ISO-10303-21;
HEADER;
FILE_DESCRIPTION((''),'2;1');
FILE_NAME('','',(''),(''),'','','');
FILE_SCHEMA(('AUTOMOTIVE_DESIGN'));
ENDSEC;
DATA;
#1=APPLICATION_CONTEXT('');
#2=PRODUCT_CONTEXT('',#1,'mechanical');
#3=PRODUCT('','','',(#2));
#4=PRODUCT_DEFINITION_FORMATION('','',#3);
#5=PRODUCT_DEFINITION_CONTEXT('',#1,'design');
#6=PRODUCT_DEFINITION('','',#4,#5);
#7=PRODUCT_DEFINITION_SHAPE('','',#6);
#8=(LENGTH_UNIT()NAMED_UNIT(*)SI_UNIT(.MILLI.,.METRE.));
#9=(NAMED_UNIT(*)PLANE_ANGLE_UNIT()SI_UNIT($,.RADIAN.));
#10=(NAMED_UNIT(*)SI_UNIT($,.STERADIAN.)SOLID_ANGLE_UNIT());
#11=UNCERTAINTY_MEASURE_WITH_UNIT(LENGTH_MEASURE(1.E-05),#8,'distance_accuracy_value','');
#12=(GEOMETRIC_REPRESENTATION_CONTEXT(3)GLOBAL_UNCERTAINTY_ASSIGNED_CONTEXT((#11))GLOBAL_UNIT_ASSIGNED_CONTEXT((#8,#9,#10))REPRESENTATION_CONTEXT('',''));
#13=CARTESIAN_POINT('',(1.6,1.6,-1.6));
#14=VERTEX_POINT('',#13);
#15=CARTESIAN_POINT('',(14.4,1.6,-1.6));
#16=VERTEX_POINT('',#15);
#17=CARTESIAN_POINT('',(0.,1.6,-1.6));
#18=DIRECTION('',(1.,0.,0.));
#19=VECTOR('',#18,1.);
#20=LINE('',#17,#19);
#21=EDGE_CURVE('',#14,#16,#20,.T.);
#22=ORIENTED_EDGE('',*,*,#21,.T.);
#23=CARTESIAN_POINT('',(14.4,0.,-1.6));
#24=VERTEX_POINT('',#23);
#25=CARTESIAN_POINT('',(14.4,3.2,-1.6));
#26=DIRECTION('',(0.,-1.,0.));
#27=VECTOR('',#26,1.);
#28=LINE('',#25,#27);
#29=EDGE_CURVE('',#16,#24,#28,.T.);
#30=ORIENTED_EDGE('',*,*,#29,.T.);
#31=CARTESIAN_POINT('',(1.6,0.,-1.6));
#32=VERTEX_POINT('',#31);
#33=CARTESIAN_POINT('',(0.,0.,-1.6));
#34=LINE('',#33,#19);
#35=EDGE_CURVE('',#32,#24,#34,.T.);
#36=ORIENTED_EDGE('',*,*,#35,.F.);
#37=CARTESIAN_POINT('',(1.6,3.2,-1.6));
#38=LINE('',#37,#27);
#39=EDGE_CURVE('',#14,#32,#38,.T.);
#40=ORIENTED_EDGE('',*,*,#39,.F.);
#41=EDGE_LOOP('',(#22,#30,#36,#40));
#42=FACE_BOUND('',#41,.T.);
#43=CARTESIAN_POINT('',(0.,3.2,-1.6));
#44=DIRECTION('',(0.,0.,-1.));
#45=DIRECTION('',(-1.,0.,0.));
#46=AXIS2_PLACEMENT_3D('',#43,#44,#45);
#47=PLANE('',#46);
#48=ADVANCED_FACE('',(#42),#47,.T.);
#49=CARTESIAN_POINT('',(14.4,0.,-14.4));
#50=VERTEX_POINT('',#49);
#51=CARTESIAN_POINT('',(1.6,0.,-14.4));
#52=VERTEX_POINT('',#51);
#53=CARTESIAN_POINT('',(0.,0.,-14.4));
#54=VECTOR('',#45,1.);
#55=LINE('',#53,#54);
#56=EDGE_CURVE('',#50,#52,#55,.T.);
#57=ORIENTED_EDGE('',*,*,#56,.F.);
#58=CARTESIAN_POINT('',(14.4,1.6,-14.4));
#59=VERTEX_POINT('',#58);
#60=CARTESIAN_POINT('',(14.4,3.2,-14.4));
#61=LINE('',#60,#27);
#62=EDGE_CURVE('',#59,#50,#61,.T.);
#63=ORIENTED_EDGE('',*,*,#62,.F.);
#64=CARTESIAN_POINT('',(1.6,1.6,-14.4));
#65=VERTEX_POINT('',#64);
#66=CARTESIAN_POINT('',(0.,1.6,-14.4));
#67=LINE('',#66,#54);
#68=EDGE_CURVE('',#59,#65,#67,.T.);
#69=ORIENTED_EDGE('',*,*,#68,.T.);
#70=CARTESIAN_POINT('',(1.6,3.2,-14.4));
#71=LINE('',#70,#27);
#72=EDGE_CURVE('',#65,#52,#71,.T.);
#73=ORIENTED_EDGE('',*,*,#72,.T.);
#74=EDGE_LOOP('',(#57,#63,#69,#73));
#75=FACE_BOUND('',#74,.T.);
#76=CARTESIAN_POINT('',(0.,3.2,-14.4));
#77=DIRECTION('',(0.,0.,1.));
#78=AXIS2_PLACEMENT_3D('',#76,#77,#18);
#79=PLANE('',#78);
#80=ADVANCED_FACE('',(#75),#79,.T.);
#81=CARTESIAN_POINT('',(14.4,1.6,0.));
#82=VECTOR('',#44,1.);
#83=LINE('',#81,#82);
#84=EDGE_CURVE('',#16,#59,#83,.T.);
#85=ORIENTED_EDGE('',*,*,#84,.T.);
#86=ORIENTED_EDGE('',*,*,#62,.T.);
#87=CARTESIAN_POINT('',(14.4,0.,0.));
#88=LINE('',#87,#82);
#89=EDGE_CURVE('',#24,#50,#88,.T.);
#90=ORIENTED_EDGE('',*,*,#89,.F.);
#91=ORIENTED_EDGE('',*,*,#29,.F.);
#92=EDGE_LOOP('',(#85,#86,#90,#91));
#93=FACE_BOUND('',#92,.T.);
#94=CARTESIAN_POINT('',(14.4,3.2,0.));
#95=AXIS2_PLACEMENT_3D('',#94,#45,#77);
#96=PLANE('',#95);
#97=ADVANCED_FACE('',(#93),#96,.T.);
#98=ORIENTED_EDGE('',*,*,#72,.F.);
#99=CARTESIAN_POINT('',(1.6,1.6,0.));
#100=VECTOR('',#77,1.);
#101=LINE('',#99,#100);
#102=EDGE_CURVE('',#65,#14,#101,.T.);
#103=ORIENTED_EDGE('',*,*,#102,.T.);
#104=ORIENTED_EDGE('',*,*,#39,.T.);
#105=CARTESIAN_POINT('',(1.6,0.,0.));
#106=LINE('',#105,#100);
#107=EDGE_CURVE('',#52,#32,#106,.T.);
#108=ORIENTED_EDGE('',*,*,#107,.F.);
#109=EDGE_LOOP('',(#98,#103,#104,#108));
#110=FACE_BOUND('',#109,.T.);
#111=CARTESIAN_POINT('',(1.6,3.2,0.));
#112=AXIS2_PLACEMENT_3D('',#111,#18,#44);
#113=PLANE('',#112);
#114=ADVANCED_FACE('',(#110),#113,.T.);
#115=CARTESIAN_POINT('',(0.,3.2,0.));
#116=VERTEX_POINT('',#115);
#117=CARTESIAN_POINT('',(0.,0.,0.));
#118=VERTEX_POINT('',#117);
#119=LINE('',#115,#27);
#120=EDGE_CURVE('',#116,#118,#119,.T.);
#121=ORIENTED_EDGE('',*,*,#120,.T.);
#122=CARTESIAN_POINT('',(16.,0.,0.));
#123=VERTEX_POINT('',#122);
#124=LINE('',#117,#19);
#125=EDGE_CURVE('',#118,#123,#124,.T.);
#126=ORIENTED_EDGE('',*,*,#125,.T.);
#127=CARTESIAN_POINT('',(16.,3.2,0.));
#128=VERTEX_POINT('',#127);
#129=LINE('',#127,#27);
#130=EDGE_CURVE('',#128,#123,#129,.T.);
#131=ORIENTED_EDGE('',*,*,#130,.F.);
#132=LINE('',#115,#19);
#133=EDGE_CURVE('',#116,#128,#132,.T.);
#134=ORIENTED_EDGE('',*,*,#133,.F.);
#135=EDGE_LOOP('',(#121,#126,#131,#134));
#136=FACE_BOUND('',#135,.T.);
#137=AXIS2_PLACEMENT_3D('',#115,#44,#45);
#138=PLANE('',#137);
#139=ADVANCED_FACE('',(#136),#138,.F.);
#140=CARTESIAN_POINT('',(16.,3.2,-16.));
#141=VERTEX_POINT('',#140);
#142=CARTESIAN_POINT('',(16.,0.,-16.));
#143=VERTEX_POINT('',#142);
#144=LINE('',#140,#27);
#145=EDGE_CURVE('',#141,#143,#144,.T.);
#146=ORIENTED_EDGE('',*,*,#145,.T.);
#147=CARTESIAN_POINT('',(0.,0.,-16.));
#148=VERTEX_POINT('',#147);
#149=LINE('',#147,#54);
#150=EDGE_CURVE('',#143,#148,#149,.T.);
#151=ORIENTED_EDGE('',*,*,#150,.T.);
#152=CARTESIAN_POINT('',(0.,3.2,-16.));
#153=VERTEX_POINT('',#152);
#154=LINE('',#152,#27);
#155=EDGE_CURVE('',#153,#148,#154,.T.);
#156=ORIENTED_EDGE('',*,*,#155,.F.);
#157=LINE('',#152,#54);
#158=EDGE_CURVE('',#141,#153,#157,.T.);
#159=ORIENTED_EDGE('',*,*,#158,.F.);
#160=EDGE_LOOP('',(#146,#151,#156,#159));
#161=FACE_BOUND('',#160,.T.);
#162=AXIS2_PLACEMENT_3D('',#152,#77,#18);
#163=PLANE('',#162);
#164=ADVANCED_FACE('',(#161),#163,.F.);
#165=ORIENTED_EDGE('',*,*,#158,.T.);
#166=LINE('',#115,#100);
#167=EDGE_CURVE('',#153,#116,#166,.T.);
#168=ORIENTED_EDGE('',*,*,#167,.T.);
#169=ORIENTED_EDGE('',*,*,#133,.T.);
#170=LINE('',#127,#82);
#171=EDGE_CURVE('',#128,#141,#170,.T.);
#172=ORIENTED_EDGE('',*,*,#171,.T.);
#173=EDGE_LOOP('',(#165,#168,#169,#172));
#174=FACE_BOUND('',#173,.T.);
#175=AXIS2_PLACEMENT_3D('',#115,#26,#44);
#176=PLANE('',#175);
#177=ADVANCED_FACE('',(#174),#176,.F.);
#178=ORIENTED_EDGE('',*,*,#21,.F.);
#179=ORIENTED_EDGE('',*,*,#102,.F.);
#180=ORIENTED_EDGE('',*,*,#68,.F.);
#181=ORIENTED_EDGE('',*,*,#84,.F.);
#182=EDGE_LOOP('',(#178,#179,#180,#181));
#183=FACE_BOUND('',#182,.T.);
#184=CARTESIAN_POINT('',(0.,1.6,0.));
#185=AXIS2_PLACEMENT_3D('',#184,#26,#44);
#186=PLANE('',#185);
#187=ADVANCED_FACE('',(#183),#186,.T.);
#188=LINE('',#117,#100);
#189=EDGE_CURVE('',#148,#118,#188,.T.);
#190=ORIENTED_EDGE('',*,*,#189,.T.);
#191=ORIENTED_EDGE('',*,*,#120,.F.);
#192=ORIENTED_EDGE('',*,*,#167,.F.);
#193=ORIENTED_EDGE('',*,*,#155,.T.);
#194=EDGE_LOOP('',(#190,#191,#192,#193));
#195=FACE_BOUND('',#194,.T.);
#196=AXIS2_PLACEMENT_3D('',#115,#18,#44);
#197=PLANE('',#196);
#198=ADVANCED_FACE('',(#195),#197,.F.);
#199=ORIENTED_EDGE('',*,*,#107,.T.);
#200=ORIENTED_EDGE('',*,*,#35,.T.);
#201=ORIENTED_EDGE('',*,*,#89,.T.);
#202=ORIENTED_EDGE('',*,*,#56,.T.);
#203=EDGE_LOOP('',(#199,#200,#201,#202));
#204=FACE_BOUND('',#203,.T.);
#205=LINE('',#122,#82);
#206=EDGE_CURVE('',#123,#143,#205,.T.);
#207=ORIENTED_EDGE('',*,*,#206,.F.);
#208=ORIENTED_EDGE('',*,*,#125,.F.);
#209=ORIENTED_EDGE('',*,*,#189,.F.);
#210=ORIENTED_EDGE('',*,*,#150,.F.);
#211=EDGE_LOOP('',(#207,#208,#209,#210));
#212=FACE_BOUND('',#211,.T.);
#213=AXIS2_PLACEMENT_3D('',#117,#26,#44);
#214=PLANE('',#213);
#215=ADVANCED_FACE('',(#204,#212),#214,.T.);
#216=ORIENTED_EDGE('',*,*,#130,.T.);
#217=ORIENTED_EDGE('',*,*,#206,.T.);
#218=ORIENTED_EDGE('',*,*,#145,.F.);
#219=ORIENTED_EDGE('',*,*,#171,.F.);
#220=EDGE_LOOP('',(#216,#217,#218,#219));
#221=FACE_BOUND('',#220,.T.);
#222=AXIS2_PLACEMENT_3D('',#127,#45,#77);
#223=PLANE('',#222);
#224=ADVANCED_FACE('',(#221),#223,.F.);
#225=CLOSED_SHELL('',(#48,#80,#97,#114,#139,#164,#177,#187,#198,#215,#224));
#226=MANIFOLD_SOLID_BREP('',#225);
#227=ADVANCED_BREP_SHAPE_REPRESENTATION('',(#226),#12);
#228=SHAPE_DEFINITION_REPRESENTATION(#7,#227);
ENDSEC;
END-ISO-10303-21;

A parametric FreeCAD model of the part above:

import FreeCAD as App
import Part
import Sketcher

V = App.Vector
Q = App.Units.Quantity


def faces_at(feature, points):
    """Names of the faces that lie closest to the given points."""
    faces = feature.Shape.Faces
    near = lambda p: min(range(len(faces)), key=lambda i: faces[i].distToShape(Part.Vertex(*p))[0])
    return sorted({f"Face{near(p) + 1}" for p in points})


def add_polygon(sketch, points):
    """Adds a closed chain of lines whose ends are joined by coincident constraints."""
    first, n = sketch.GeometryCount, len(points)
    for a, b in zip(points, points[1:] + points[:1]):
        sketch.addGeometry(Part.LineSegment(App.Vector(*a, 0), App.Vector(*b, 0)), False)
    for i in range(n):
        sketch.addConstraint(Sketcher.Constraint("Coincident", first + i, 2, first + (i + 1) % n, 1))

doc = App.newDocument("Part")
body = doc.addObject("PartDesign::Body", "Body")

sketch1 = body.newObject("Sketcher::SketchObject", "Sketch")
sketch1.AttachmentSupport = (doc.getObject("XZ_Plane"), [""])
sketch1.MapMode = "FlatFace"
add_polygon(sketch1, [(0, -16), (0, 0), (16, 0), (16, -16)])
sketch1.addConstraint([
    Sketcher.Constraint("Vertical", 0),
    Sketcher.Constraint("Horizontal", 1),
    Sketcher.Constraint("Vertical", 2),
    Sketcher.Constraint("Horizontal", 3),
    Sketcher.Constraint("Coincident", 0, 2, -1, 1),
    Sketcher.Constraint("Equal", 3, 0),
    Sketcher.Constraint("DistanceX", 1, 1, 1, 2, Q("16 mm")),
])
pad1 = body.newObject("PartDesign::Pad", "Pad")
pad1.Profile = sketch1
pad1.Length = 3.2
pad1.Reversed = True
doc.recompute()

thickness = body.newObject("PartDesign::Thickness", "Thickness")
thickness.Base = (pad1, faces_at(pad1, [(8, 0, -8)]))
thickness.Value = 1.6
thickness.Reversed = True
thickness.Join = "Intersection"

doc.recompute()
